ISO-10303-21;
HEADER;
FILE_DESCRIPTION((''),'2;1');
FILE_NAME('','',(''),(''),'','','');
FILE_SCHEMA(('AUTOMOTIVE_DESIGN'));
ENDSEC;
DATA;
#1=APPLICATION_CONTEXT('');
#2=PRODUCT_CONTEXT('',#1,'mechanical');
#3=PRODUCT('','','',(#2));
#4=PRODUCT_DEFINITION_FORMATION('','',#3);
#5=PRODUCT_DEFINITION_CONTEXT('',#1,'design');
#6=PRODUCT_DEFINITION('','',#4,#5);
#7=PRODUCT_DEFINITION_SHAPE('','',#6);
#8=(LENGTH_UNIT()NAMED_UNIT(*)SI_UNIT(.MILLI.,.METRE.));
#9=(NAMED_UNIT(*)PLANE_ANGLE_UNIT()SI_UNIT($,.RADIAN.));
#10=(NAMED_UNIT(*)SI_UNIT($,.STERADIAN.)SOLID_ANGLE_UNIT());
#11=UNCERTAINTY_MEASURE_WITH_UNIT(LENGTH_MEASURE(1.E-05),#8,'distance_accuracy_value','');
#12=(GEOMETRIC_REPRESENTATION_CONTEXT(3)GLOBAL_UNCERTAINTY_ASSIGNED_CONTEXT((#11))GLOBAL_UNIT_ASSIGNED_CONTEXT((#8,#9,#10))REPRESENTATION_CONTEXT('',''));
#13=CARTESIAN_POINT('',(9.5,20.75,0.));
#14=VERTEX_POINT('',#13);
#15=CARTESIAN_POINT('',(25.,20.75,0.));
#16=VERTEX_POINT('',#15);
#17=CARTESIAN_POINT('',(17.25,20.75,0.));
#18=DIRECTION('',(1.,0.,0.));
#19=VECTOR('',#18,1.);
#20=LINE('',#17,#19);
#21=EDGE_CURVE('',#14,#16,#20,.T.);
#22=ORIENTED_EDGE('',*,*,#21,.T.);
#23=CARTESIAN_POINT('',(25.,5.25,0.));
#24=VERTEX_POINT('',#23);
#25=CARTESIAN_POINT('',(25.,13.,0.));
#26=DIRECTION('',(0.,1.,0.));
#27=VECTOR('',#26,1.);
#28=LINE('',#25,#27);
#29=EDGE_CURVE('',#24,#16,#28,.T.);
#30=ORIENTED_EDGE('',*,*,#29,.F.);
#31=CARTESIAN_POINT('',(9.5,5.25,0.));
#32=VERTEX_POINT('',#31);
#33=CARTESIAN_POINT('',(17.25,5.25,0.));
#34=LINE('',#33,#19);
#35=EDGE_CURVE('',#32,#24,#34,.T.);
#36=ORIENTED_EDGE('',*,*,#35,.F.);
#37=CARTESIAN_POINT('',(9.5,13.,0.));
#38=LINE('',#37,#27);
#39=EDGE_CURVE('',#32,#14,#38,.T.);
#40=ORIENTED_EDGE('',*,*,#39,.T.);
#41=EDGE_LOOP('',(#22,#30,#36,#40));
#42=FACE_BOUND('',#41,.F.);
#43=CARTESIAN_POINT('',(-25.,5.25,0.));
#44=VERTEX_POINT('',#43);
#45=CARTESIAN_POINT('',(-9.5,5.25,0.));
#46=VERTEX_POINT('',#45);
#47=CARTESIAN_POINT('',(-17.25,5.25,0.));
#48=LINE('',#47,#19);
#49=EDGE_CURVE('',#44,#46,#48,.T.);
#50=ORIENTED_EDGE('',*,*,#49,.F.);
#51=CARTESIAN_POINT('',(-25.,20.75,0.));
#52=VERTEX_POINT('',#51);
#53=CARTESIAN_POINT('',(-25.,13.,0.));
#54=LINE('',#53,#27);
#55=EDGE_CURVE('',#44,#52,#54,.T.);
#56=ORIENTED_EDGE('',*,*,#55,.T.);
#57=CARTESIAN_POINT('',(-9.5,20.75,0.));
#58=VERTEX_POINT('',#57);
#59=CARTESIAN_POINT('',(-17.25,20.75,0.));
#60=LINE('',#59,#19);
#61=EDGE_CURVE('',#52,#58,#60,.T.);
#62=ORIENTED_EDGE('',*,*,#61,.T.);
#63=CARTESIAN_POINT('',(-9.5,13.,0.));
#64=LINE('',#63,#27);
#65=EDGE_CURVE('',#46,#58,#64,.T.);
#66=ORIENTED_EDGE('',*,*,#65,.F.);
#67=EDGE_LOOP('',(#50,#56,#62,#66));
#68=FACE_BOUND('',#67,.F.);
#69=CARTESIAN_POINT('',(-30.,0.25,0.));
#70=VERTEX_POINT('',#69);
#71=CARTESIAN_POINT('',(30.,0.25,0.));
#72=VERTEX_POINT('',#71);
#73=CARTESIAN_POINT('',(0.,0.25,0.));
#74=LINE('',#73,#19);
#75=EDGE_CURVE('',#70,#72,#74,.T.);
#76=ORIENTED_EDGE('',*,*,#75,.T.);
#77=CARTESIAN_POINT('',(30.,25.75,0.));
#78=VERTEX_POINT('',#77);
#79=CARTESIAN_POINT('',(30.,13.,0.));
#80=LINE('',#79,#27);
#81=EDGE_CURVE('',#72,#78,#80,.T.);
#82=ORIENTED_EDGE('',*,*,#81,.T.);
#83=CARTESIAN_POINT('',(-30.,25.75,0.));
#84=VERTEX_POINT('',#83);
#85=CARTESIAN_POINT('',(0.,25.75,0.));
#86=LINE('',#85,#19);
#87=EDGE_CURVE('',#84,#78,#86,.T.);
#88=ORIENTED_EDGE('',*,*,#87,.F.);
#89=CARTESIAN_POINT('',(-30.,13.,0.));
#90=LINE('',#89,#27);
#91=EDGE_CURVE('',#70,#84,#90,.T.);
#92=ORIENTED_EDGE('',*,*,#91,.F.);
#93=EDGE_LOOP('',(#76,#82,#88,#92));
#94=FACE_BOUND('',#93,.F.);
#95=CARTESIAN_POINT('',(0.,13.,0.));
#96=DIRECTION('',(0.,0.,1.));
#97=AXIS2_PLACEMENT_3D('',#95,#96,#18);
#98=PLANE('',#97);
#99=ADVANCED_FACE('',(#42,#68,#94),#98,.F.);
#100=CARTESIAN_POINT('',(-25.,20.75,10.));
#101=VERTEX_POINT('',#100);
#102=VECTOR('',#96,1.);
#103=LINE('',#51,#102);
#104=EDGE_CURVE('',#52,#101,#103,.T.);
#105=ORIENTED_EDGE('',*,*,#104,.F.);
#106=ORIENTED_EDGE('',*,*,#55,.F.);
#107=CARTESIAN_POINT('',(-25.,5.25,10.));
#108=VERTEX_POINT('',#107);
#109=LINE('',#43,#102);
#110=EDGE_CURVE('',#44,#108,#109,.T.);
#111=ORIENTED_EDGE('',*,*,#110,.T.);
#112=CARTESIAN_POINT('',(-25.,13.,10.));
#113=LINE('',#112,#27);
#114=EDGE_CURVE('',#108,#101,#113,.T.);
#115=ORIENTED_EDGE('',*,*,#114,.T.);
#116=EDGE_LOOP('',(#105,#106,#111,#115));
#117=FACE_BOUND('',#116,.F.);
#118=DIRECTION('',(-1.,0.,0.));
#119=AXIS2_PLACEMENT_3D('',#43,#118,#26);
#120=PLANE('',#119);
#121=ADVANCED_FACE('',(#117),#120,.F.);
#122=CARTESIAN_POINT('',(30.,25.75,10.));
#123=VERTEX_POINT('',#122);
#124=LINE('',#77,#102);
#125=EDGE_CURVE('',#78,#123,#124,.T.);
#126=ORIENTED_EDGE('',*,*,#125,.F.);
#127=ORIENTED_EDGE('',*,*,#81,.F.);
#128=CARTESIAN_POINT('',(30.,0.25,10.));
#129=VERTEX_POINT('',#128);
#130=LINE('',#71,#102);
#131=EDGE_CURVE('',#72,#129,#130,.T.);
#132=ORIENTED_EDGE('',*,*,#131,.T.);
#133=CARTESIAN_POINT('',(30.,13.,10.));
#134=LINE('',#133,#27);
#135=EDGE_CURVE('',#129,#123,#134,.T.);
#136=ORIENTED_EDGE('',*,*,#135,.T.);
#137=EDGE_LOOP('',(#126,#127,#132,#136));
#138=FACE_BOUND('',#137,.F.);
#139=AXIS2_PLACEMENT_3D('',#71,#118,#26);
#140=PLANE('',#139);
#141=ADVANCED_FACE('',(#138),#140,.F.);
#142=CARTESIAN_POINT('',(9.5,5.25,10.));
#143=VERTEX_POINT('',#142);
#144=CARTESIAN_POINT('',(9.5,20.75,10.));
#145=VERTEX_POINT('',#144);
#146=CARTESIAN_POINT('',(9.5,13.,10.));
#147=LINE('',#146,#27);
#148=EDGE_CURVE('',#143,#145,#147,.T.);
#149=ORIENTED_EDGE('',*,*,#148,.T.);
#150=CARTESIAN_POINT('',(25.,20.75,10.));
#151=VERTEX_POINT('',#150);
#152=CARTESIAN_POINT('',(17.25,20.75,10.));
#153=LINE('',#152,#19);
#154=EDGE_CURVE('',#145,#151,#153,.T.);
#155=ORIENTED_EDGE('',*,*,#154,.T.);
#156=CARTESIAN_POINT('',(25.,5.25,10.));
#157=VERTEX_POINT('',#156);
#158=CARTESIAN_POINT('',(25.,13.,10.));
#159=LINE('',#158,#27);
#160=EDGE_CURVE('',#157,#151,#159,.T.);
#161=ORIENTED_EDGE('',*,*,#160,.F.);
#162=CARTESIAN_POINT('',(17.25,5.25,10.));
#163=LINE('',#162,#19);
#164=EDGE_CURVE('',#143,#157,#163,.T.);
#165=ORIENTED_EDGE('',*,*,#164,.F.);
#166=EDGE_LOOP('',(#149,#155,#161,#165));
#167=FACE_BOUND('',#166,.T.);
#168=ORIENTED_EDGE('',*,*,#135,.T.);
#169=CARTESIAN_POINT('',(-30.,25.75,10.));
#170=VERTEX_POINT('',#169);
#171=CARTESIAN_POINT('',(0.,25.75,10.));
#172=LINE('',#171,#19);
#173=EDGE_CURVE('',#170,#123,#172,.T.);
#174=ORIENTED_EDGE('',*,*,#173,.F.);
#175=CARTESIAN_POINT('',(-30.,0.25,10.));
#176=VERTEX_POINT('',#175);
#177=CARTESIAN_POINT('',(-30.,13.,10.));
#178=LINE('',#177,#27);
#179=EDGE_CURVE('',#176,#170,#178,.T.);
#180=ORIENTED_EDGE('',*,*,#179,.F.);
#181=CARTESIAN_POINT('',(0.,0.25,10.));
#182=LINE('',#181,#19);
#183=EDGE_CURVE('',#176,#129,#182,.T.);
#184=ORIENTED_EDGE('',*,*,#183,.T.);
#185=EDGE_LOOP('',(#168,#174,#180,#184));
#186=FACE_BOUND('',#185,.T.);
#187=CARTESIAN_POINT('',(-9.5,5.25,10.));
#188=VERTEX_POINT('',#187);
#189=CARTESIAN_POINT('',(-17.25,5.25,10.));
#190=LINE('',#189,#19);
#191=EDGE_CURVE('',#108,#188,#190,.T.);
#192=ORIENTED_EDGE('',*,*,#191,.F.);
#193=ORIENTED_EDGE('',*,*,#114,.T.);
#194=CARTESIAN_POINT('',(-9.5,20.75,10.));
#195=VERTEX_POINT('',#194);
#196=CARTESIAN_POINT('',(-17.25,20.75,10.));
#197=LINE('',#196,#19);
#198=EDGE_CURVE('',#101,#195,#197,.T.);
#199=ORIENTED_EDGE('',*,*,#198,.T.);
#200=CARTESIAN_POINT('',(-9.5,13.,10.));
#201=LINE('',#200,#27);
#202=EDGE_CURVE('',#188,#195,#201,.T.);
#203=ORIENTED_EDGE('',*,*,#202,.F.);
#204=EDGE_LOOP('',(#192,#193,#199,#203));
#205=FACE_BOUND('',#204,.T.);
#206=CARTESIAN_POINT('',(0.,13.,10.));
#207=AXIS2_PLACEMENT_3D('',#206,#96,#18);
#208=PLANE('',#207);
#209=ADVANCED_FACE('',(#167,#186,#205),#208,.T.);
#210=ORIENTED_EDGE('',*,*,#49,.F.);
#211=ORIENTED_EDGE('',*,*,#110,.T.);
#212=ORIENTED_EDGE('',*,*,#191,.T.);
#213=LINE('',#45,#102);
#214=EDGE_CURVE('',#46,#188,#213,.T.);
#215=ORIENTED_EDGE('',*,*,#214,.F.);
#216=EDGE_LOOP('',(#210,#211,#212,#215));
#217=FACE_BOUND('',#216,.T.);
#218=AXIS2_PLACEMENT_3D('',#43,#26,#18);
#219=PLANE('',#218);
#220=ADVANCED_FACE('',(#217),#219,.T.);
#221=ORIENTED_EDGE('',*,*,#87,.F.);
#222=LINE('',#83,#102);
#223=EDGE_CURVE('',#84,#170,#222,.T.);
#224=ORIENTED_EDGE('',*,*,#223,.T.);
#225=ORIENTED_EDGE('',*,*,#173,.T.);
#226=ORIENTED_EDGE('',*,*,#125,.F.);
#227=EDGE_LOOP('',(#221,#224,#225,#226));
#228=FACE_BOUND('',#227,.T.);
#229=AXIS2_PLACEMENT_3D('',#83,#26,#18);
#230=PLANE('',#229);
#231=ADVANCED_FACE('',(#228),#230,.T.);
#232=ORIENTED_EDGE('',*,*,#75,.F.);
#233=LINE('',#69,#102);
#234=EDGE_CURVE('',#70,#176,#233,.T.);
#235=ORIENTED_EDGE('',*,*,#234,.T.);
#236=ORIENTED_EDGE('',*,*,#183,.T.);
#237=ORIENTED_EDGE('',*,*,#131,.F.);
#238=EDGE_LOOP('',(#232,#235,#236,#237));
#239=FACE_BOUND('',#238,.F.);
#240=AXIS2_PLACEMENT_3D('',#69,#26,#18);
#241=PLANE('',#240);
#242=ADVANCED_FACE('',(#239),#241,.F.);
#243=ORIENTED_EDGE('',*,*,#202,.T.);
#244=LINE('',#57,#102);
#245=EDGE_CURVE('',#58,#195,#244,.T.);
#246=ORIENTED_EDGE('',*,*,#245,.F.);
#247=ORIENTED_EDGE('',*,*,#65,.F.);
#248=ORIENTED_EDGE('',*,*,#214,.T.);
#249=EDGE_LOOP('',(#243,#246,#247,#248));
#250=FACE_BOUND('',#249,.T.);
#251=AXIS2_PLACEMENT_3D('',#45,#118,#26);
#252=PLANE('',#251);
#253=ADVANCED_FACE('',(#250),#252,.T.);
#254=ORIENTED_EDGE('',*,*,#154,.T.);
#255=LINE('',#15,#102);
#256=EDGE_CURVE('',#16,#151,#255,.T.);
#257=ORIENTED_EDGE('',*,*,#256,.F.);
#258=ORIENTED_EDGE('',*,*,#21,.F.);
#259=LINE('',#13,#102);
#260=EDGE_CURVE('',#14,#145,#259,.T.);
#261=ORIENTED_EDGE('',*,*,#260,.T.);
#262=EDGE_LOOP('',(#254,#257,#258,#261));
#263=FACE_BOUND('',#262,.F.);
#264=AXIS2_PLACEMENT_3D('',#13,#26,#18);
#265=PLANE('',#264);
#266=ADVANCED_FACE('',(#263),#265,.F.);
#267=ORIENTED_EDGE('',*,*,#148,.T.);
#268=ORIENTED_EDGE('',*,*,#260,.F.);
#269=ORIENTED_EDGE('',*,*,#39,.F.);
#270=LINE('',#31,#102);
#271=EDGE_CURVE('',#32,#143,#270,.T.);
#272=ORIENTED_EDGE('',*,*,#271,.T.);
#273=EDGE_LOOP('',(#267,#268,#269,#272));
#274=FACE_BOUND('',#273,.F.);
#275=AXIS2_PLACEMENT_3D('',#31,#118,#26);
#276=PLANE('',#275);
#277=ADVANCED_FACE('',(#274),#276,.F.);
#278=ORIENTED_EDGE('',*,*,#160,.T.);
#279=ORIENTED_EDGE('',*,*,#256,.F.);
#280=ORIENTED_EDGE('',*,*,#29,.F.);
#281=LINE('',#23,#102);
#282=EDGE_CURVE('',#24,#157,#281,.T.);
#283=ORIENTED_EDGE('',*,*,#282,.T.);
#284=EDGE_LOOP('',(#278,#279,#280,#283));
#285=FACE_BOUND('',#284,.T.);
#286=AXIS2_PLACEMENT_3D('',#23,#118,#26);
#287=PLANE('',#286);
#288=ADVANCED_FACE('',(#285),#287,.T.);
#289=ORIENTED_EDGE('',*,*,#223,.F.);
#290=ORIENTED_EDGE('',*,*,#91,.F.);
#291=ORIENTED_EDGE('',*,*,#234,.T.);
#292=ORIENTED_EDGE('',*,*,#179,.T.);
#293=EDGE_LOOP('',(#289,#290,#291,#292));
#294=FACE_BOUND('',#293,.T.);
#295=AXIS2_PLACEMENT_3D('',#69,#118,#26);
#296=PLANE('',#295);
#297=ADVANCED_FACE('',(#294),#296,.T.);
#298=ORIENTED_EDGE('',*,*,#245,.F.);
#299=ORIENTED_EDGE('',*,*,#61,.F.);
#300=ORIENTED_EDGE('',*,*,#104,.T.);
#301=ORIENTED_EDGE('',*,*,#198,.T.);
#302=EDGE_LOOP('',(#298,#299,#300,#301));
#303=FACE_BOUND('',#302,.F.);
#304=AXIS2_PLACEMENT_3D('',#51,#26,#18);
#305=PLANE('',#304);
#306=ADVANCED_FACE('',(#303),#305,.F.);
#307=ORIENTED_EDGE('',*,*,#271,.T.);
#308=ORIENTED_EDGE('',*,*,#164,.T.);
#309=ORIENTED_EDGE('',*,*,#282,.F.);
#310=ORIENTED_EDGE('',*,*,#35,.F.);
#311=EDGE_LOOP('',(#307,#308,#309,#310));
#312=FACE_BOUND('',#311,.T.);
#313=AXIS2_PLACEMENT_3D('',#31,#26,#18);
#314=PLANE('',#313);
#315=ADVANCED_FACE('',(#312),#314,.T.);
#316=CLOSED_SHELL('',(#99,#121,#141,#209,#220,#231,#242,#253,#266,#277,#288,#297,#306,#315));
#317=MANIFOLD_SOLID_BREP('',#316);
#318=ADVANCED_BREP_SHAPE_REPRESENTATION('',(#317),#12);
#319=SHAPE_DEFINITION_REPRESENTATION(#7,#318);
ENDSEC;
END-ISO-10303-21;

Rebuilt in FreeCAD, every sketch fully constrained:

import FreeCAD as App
import Part
import Sketcher

doc = App.newDocument("Part")
body = doc.addObject("PartDesign::Body", "Body")

# Sketch on XY plane
sketch1 = body.newObject("Sketcher::SketchObject", "Sketch")
sketch1.AttachmentSupport = (doc.getObject("XY_Plane"), [""])
sketch1.MapMode = "FlatFace"
sketch1.addGeometry([
    Part.LineSegment(App.Vector(-30, 26, 0), App.Vector(-30, 0, 0)),  # 0
    Part.LineSegment(App.Vector(-30, 0, 0), App.Vector(30, 0, 0)),  # 1
    Part.LineSegment(App.Vector(30, 0, 0), App.Vector(30, 26, 0)),  # 2
    Part.LineSegment(App.Vector(30, 26, 0), App.Vector(-30, 26, 0)),  # 3
    Part.LineSegment(App.Vector(-10, 5, 0), App.Vector(-25, 5, 0)),  # 4
    Part.LineSegment(App.Vector(-25, 5, 0), App.Vector(-25, 21, 0)),  # 5
    Part.LineSegment(App.Vector(-25, 21, 0), App.Vector(-10, 21, 0)),  # 6
    Part.LineSegment(App.Vector(-10, 21, 0), App.Vector(-10, 5, 0)),  # 7
    Part.LineSegment(App.Vector(25, 5, 0), App.Vector(10, 5, 0)),  # 8
    Part.LineSegment(App.Vector(10, 5, 0), App.Vector(10, 21, 0)),  # 9
    Part.LineSegment(App.Vector(10, 21, 0), App.Vector(25, 21, 0)),  # 10
    Part.LineSegment(App.Vector(25, 21, 0), App.Vector(25, 5, 0)),  # 11
], False)
sketch1.addConstraint([
    Sketcher.Constraint("Coincident", 0, 2, 1, 1),
    Sketcher.Constraint("Coincident", 1, 2, 2, 1),
    Sketcher.Constraint("Coincident", 2, 2, 3, 1),
    Sketcher.Constraint("Coincident", 3, 2, 0, 1),
    Sketcher.Constraint("Coincident", 4, 2, 5, 1),
    Sketcher.Constraint("Coincident", 5, 2, 6, 1),
    Sketcher.Constraint("Coincident", 6, 2, 7, 1),
    Sketcher.Constraint("Coincident", 7, 2, 4, 1),
    Sketcher.Constraint("Coincident", 8, 2, 9, 1),
    Sketcher.Constraint("Coincident", 9, 2, 10, 1),
    Sketcher.Constraint("Coincident", 10, 2, 11, 1),
    Sketcher.Constraint("Coincident", 11, 2, 8, 1),
    Sketcher.Constraint("Vertical", 0),
    Sketcher.Constraint("Horizontal", 1),
    Sketcher.Constraint("Vertical", 2),
    Sketcher.Constraint("Horizontal", 3),
    Sketcher.Constraint("Horizontal", 4),
    Sketcher.Constraint("Vertical", 5),
    Sketcher.Constraint("Horizontal", 6),
    Sketcher.Constraint("Vertical", 7),
    Sketcher.Constraint("Horizontal", 8),
    Sketcher.Constraint("Vertical", 9),
    Sketcher.Constraint("Horizontal", 10),
    Sketcher.Constraint("Vertical", 11),
    Sketcher.Constraint("Symmetric", 7, 2, 8, 2, -2),
    Sketcher.Constraint("Symmetric", 5, 2, 10, 2, -2),
    Sketcher.Constraint("Equal", 10, 5),
    Sketcher.Constraint("DistanceX", 1, 1, 1, 2, 60.0),
    Sketcher.Constraint("DistanceX", 4, 2, 4, 1, 15.5),
    Sketcher.Constraint("DistanceY", 0, 2, 0, 1, 25.5),
    Sketcher.Constraint("DistanceX", 0, 2, -1, 1, 30.0),
    Sketcher.Constraint("DistanceX", 4, 2, -1, 1, 25.0),
    Sketcher.Constraint("DistanceY", 0, 2, 4, 2, 5.0),
    Sketcher.Constraint("DistanceY", -1, 1, 0, 2, 0.25),
])
pad1 = body.newObject("PartDesign::Pad", "Pad")
pad1.Profile = sketch1
pad1.Length = 10

doc.recompute()
